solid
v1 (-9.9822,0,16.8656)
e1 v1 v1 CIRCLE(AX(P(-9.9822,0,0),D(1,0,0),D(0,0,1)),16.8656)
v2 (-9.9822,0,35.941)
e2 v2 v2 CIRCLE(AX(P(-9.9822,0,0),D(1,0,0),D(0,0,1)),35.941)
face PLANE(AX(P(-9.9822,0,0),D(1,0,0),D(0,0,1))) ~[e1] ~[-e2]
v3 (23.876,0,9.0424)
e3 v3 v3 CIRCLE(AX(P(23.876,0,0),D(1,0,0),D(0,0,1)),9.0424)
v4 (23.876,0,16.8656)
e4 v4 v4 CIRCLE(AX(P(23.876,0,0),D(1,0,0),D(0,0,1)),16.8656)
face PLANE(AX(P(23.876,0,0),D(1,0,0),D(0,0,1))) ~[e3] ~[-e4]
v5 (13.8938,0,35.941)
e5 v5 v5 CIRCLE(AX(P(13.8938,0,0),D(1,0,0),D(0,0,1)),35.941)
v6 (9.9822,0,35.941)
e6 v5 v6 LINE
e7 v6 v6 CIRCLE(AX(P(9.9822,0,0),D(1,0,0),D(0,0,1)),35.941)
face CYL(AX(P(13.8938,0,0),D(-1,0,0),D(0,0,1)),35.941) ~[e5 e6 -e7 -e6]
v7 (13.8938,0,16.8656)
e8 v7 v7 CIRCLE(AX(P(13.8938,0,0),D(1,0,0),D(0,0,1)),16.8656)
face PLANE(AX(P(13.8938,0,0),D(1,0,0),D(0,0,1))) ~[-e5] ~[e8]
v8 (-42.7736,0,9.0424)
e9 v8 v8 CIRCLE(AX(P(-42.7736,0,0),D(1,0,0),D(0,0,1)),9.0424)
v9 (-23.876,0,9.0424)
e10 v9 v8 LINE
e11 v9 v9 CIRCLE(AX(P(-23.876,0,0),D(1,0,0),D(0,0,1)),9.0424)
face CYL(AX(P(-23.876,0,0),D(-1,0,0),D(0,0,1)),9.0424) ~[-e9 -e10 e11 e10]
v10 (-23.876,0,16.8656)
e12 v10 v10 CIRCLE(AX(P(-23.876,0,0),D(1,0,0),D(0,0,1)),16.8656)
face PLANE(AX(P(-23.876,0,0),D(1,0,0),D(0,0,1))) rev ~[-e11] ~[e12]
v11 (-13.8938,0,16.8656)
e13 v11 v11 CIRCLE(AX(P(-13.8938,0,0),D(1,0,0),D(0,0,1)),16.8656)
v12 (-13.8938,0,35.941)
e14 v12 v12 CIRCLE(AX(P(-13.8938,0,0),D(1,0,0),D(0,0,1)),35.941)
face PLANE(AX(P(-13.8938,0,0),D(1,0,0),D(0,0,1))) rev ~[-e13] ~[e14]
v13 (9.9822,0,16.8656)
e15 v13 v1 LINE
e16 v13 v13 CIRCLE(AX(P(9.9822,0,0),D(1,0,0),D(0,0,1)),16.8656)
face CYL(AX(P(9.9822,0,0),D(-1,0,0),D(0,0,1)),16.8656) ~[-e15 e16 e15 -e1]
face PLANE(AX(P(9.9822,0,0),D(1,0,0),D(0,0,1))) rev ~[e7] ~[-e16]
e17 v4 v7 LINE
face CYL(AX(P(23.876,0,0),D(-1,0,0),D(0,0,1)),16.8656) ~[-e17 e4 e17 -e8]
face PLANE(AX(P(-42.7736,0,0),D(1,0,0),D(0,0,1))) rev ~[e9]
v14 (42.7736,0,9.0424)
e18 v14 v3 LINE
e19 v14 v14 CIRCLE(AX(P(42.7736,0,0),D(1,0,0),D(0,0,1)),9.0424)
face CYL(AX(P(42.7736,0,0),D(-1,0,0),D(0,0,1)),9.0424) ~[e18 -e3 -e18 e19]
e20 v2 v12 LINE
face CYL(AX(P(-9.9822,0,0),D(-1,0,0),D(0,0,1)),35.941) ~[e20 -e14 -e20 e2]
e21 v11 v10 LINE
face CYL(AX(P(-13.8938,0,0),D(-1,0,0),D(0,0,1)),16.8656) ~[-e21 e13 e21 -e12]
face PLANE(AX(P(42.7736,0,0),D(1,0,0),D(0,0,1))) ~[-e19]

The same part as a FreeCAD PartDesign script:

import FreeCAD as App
import Part
import Sketcher

V = App.Vector
Q = App.Units.Quantity

doc = App.newDocument("Part")
body = doc.addObject("PartDesign::Body", "Body")

# Sketch on XZ plane
sketch1 = body.newObject("Sketcher::SketchObject", "Sketch")
sketch1.AttachmentSupport = (doc.getObject("XZ_Plane"), [""])
sketch1.MapMode = "FlatFace"
sketch1.addGeometry([
    Part.LineSegment(V(-42.8, 0, 0), V(42.8, 0, 0)),  # 0
    Part.LineSegment(V(42.8, 0, 0), V(42.8, 9, 0)),  # 1
    Part.LineSegment(V(42.8, 9, 0), V(23.9, 9, 0)),  # 2
    Part.LineSegment(V(23.9, 9, 0), V(23.9, 16.9, 0)),  # 3
    Part.LineSegment(V(23.9, 16.9, 0), V(13.9, 16.9, 0)),  # 4
    Part.LineSegment(V(13.9, 16.9, 0), V(13.9, 35.9, 0)),  # 5
    Part.LineSegment(V(13.9, 35.9, 0), V(10, 35.9, 0)),  # 6
    Part.LineSegment(V(10, 35.9, 0), V(10, 16.9, 0)),  # 7
    Part.LineSegment(V(10, 16.9, 0), V(-10, 16.9, 0)),  # 8
    Part.LineSegment(V(-10, 16.9, 0), V(-10, 35.9, 0)),  # 9
    Part.LineSegment(V(-10, 35.9, 0), V(-13.9, 35.9, 0)),  # 10
    Part.LineSegment(V(-13.9, 35.9, 0), V(-13.9, 16.9, 0)),  # 11
    Part.LineSegment(V(-13.9, 16.9, 0), V(-23.9, 16.9, 0)),  # 12
    Part.LineSegment(V(-23.9, 16.9, 0), V(-23.9, 9, 0)),  # 13
    Part.LineSegment(V(-23.9, 9, 0), V(-42.8, 9, 0)),  # 14
    Part.LineSegment(V(-42.8, 9, 0), V(-42.8, 0, 0)),  # 15
], False)
sketch1.addConstraint([
    Sketcher.Constraint("Coincident", 0, 2, 1, 1),
    Sketcher.Constraint("Coincident", 1, 2, 2, 1),
    Sketcher.Constraint("Coincident", 2, 2, 3, 1),
    Sketcher.Constraint("Coincident", 3, 2, 4, 1),
    Sketcher.Constraint("Coincident", 4, 2, 5, 1),
    Sketcher.Constraint("Coincident", 5, 2, 6, 1),
    Sketcher.Constraint("Coincident", 6, 2, 7, 1),
    Sketcher.Constraint("Coincident", 7, 2, 8, 1),
    Sketcher.Constraint("Coincident", 8, 2, 9, 1),
    Sketcher.Constraint("Coincident", 9, 2, 10, 1),
    Sketcher.Constraint("Coincident", 10, 2, 11, 1),
    Sketcher.Constraint("Coincident", 11, 2, 12, 1),
    Sketcher.Constraint("Coincident", 12, 2, 13, 1),
    Sketcher.Constraint("Coincident", 13, 2, 14, 1),
    Sketcher.Constraint("Coincident", 14, 2, 15, 1),
    Sketcher.Constraint("Coincident", 15, 2, 0, 1),
    Sketcher.Constraint("Horizontal", 0),
    Sketcher.Constraint("Vertical", 1),
    Sketcher.Constraint("Horizontal", 2),
    Sketcher.Constraint("Vertical", 3),
    Sketcher.Constraint("Horizontal", 4),
    Sketcher.Constraint("Vertical", 5),
    Sketcher.Constraint("Horizontal", 6),
    Sketcher.Constraint("Vertical", 7),
    Sketcher.Constraint("Horizontal", 8),
    Sketcher.Constraint("Vertical", 9),
    Sketcher.Constraint("Horizontal", 10),
    Sketcher.Constraint("Vertical", 11),
    Sketcher.Constraint("Horizontal", 12),
    Sketcher.Constraint("Vertical", 13),
    Sketcher.Constraint("Horizontal", 14),
    Sketcher.Constraint("Vertical", 15),
    Sketcher.Constraint("Symmetric", 0, 2, 15, 2, -1, 1),
    Sketcher.Constraint("Symmetric", 6, 2, 9, 2, -2),
    Sketcher.Constraint("Symmetric", 4, 2, 11, 2, -2),
    Sketcher.Constraint("Symmetric", 2, 2, 13, 2, -2),
    Sketcher.Constraint("Horizontal", 4, 2, 7, 2),
    Sketcher.Constraint("DistanceX", 0, 1, 0, 2, Q("3.368 in")),
    Sketcher.Constraint("DistanceX", 2, 2, 2, 1, Q("0.744 in")),
    Sketcher.Constraint("DistanceX", 4, 2, 4, 1, Q("0.393 in")),
    Sketcher.Constraint("DistanceX", 6, 2, 6, 1, Q("0.154 in")),
    Sketcher.Constraint("DistanceY", 1, 1, 1, 2, Q("0.356 in")),
    Sketcher.Constraint("DistanceY", 3, 1, 3, 2, Q("0.308 in")),
    Sketcher.Constraint("DistanceY", 5, 1, 5, 2, Q("0.751 in")),
])
revolution = body.newObject("PartDesign::Revolution", "Revolution")
revolution.Profile = sketch1
revolution.ReferenceAxis = (sketch1, ["H_Axis"])
revolution.Angle = 360

doc.recompute()
